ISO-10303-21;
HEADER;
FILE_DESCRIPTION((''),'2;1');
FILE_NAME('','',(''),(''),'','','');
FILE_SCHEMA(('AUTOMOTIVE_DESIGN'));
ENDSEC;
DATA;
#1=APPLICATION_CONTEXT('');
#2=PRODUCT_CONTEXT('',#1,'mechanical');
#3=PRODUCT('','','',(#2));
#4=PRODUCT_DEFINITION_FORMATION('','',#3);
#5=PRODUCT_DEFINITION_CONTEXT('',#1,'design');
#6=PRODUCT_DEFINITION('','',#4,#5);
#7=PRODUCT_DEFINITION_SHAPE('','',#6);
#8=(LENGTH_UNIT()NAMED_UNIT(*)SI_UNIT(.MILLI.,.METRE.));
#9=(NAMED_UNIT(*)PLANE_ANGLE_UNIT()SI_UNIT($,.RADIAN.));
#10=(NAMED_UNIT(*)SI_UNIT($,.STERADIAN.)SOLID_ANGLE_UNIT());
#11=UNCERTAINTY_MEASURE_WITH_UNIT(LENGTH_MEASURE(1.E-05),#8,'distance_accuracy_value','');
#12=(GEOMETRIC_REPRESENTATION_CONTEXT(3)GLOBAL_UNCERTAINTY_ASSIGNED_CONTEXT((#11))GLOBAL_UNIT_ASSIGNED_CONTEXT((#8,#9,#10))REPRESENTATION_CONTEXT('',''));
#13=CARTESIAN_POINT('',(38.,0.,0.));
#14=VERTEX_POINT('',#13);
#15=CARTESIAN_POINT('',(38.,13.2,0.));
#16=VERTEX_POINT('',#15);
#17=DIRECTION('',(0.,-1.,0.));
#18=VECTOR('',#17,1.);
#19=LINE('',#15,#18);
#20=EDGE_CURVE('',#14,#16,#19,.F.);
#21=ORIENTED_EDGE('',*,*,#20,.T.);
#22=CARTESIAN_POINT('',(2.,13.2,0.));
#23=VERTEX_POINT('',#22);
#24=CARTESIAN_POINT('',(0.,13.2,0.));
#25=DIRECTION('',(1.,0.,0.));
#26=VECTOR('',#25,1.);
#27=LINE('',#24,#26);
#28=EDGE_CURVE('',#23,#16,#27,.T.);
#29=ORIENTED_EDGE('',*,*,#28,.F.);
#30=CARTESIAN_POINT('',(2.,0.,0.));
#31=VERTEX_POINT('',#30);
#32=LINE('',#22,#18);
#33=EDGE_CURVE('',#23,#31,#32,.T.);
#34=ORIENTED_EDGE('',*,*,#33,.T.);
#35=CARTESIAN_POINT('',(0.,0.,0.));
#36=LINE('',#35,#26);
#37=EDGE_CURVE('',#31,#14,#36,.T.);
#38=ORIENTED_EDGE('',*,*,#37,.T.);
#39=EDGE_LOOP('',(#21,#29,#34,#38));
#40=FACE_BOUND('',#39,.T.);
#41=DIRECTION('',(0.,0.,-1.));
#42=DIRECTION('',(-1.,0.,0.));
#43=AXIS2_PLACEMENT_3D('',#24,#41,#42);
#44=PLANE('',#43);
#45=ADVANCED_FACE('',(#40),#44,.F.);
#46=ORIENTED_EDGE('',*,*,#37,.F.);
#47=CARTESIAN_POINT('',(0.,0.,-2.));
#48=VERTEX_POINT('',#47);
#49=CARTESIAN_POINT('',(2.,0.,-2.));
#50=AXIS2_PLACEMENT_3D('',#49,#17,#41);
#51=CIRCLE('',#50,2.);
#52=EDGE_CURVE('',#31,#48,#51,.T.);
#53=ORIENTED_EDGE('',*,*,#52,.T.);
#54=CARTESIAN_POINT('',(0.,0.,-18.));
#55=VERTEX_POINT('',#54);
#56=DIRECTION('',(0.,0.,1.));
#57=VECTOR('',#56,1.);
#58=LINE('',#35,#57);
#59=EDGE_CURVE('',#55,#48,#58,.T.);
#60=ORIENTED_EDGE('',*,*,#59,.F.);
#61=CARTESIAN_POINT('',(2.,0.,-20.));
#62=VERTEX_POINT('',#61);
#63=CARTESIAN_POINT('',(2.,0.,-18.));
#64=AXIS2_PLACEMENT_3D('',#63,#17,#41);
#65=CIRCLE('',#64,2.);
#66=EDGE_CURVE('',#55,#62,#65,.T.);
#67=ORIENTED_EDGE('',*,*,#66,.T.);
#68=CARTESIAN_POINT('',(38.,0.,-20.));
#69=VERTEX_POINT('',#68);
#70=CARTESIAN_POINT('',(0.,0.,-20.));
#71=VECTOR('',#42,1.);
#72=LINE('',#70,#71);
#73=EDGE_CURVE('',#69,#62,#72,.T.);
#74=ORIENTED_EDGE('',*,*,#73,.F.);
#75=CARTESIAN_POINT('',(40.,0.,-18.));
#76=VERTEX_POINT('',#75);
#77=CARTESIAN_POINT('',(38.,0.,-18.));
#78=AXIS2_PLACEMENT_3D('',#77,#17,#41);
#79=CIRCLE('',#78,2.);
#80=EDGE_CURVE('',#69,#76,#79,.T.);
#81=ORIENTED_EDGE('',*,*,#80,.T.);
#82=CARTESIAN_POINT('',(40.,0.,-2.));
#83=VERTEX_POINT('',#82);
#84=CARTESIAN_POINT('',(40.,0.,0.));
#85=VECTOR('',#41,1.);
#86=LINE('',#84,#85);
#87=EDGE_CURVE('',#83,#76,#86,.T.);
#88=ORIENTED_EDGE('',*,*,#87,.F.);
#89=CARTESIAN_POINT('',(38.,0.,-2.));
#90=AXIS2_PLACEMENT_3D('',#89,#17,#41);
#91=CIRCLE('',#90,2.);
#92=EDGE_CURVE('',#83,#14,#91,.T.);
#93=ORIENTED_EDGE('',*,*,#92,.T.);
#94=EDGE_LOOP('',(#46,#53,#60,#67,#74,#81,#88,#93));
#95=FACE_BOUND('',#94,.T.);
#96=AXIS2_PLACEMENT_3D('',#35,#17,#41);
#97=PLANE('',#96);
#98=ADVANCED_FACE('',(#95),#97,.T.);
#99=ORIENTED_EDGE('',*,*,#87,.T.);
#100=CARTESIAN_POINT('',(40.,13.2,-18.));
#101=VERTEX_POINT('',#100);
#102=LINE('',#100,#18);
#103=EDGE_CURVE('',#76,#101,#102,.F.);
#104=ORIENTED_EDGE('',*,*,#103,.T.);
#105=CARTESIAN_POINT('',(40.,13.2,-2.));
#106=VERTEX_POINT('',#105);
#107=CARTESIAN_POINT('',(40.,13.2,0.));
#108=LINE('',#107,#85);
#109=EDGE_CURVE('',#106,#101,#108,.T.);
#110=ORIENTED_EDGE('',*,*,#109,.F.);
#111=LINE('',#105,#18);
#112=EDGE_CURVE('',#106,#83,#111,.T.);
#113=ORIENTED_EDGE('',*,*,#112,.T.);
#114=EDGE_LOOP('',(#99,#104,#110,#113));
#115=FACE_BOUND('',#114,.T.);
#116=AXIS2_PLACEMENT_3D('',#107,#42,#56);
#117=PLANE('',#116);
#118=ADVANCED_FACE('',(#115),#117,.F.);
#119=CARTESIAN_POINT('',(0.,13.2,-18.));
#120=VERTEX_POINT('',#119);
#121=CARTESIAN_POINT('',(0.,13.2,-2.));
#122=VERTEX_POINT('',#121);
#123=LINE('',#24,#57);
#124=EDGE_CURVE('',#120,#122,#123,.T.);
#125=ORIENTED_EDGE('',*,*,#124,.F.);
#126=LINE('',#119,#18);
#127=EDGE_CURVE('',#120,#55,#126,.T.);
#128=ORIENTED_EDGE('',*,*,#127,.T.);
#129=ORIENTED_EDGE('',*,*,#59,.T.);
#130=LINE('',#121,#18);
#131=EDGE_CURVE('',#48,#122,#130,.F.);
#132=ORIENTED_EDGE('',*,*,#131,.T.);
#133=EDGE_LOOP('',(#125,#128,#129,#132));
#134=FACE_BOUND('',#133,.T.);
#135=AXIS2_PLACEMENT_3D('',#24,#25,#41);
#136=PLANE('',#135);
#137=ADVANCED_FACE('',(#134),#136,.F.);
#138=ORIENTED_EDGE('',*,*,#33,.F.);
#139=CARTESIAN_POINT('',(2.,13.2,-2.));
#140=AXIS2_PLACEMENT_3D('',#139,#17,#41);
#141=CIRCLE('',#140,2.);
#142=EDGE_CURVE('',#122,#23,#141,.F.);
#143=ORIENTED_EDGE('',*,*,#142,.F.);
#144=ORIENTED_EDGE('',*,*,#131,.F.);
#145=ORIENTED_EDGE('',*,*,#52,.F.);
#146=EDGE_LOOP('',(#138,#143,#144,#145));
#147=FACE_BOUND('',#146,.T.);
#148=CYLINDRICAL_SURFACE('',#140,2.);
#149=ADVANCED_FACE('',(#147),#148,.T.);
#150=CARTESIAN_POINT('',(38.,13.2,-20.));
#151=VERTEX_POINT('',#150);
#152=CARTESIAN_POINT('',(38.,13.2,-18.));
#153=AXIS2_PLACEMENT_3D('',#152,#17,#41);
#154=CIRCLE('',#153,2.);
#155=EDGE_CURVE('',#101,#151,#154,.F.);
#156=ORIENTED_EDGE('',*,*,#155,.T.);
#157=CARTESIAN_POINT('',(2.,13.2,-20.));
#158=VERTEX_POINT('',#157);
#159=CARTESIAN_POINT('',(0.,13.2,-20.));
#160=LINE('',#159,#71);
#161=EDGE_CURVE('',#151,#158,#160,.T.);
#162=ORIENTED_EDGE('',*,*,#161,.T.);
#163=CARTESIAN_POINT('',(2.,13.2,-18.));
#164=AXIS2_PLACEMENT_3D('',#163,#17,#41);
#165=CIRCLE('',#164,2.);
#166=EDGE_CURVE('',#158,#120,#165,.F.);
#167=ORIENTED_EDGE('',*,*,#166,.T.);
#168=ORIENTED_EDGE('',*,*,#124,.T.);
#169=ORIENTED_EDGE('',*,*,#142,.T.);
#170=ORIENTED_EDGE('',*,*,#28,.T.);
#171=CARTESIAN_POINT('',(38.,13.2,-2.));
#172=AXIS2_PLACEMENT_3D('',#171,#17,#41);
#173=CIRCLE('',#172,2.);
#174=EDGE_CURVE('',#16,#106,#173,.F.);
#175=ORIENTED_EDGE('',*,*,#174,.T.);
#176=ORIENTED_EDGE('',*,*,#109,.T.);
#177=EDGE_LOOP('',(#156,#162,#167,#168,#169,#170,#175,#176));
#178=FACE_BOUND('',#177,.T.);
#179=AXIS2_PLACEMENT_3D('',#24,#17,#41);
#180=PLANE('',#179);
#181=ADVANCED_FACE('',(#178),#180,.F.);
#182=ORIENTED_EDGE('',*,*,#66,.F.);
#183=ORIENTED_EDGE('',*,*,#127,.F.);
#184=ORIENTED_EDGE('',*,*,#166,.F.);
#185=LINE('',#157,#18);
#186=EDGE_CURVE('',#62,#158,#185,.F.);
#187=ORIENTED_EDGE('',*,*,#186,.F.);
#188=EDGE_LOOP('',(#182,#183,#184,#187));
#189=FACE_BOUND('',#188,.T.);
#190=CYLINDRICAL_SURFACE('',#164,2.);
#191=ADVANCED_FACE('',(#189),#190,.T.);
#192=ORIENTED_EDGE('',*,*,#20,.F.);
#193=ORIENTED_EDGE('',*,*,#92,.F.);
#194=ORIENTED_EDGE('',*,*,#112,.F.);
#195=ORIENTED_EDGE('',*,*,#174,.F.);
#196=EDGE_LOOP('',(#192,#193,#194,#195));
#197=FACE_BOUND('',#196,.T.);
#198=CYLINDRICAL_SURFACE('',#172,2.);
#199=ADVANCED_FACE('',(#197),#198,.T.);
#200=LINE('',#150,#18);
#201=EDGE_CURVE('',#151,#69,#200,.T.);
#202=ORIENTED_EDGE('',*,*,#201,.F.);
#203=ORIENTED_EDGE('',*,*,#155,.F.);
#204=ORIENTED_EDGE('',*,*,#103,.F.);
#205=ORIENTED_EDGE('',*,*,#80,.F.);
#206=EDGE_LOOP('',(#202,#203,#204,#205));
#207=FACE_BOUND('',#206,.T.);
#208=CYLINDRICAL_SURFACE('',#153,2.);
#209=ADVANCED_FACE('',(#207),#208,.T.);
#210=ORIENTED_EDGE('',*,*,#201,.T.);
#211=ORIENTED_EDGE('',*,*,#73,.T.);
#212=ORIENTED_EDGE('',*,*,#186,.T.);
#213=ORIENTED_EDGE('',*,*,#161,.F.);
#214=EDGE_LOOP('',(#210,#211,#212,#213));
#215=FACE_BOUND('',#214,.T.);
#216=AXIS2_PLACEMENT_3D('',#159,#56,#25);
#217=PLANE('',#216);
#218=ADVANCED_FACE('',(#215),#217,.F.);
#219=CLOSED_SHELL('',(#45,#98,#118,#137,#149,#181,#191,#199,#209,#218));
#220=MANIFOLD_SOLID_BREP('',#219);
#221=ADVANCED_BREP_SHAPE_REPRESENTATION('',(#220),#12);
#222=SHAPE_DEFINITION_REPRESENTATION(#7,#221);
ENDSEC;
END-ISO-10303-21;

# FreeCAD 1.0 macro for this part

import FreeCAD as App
import Part
import Sketcher
from FreeCAD import Vector
Q = App.Units.Quantity


def edges_at(feature, points):
    """Names of the edges that pass closest to the given points."""
    edges = feature.Shape.Edges
    near = lambda p: min(range(len(edges)), key=lambda i: edges[i].distToShape(Part.Vertex(*p))[0])
    return sorted({f"Edge{near(p) + 1}" for p in points})


def add_polygon(sketch, points):
    """Adds a closed chain of lines whose ends are joined by coincident constraints."""
    first, n = sketch.GeometryCount, len(points)
    for a, b in zip(points, points[1:] + points[:1]):
        sketch.addGeometry(Part.LineSegment(App.Vector(*a, 0), App.Vector(*b, 0)), False)
    for i in range(n):
        sketch.addConstraint(Sketcher.Constraint("Coincident", first + i, 2, first + (i + 1) % n, 1))

doc = App.newDocument("Part")
params = doc.addObject("Spreadsheet::Sheet", "Params")
for row, (alias, value) in enumerate([
    ("sketch1_width", "40 mm"),
    ("sketch1_height", "20 mm"),
    ("pad1_length", "13.2 mm"),
    ("fillet_radius", "2 mm"),
], start=1):
    params.set(f"A{row}", alias)
    params.set(f"B{row}", "=" + value)
    params.setAlias(f"B{row}", alias)

body = doc.addObject("PartDesign::Body", "Body")

sketch1 = body.newObject("Sketcher::SketchObject", "Sketch")
sketch1.AttachmentSupport = (doc.getObject("XZ_Plane"), [""])
sketch1.MapMode = "FlatFace"
add_polygon(sketch1, [(0, -20), (0, 0), (40, 0), (40, -20)])
sketch1.addConstraint([
    Sketcher.Constraint("Vertical", 0),
    Sketcher.Constraint("Horizontal", 1),
    Sketcher.Constraint("Vertical", 2),
    Sketcher.Constraint("Horizontal", 3),
    Sketcher.Constraint("Coincident", 0, 2, -1, 1),
    Sketcher.Constraint("DistanceX", 1, 1, 1, 2, Q("40 mm")),
    Sketcher.Constraint("DistanceY", 0, 1, 0, 2, Q("20 mm")),
])
sketch1.setExpression("Constraints[9]", "Params.sketch1_width")
sketch1.setExpression("Constraints[10]", "Params.sketch1_height")
pad1 = body.newObject("PartDesign::Pad", "Pad")
pad1.Profile = sketch1
pad1.setExpression("Length", "Params.pad1_length")
pad1.Reversed = True
doc.recompute()

fillet = body.newObject("PartDesign::Fillet", "Fillet")
fillet.Base = (pad1, edges_at(pad1, [
    (0, 6.6, -20),
    (40, 6.6, -20),
    (40, 6.6, 0),
    (0, 6.6, 0),
]))
fillet.setExpression("Radius", "Params.fillet_radius")

doc.recompute()
